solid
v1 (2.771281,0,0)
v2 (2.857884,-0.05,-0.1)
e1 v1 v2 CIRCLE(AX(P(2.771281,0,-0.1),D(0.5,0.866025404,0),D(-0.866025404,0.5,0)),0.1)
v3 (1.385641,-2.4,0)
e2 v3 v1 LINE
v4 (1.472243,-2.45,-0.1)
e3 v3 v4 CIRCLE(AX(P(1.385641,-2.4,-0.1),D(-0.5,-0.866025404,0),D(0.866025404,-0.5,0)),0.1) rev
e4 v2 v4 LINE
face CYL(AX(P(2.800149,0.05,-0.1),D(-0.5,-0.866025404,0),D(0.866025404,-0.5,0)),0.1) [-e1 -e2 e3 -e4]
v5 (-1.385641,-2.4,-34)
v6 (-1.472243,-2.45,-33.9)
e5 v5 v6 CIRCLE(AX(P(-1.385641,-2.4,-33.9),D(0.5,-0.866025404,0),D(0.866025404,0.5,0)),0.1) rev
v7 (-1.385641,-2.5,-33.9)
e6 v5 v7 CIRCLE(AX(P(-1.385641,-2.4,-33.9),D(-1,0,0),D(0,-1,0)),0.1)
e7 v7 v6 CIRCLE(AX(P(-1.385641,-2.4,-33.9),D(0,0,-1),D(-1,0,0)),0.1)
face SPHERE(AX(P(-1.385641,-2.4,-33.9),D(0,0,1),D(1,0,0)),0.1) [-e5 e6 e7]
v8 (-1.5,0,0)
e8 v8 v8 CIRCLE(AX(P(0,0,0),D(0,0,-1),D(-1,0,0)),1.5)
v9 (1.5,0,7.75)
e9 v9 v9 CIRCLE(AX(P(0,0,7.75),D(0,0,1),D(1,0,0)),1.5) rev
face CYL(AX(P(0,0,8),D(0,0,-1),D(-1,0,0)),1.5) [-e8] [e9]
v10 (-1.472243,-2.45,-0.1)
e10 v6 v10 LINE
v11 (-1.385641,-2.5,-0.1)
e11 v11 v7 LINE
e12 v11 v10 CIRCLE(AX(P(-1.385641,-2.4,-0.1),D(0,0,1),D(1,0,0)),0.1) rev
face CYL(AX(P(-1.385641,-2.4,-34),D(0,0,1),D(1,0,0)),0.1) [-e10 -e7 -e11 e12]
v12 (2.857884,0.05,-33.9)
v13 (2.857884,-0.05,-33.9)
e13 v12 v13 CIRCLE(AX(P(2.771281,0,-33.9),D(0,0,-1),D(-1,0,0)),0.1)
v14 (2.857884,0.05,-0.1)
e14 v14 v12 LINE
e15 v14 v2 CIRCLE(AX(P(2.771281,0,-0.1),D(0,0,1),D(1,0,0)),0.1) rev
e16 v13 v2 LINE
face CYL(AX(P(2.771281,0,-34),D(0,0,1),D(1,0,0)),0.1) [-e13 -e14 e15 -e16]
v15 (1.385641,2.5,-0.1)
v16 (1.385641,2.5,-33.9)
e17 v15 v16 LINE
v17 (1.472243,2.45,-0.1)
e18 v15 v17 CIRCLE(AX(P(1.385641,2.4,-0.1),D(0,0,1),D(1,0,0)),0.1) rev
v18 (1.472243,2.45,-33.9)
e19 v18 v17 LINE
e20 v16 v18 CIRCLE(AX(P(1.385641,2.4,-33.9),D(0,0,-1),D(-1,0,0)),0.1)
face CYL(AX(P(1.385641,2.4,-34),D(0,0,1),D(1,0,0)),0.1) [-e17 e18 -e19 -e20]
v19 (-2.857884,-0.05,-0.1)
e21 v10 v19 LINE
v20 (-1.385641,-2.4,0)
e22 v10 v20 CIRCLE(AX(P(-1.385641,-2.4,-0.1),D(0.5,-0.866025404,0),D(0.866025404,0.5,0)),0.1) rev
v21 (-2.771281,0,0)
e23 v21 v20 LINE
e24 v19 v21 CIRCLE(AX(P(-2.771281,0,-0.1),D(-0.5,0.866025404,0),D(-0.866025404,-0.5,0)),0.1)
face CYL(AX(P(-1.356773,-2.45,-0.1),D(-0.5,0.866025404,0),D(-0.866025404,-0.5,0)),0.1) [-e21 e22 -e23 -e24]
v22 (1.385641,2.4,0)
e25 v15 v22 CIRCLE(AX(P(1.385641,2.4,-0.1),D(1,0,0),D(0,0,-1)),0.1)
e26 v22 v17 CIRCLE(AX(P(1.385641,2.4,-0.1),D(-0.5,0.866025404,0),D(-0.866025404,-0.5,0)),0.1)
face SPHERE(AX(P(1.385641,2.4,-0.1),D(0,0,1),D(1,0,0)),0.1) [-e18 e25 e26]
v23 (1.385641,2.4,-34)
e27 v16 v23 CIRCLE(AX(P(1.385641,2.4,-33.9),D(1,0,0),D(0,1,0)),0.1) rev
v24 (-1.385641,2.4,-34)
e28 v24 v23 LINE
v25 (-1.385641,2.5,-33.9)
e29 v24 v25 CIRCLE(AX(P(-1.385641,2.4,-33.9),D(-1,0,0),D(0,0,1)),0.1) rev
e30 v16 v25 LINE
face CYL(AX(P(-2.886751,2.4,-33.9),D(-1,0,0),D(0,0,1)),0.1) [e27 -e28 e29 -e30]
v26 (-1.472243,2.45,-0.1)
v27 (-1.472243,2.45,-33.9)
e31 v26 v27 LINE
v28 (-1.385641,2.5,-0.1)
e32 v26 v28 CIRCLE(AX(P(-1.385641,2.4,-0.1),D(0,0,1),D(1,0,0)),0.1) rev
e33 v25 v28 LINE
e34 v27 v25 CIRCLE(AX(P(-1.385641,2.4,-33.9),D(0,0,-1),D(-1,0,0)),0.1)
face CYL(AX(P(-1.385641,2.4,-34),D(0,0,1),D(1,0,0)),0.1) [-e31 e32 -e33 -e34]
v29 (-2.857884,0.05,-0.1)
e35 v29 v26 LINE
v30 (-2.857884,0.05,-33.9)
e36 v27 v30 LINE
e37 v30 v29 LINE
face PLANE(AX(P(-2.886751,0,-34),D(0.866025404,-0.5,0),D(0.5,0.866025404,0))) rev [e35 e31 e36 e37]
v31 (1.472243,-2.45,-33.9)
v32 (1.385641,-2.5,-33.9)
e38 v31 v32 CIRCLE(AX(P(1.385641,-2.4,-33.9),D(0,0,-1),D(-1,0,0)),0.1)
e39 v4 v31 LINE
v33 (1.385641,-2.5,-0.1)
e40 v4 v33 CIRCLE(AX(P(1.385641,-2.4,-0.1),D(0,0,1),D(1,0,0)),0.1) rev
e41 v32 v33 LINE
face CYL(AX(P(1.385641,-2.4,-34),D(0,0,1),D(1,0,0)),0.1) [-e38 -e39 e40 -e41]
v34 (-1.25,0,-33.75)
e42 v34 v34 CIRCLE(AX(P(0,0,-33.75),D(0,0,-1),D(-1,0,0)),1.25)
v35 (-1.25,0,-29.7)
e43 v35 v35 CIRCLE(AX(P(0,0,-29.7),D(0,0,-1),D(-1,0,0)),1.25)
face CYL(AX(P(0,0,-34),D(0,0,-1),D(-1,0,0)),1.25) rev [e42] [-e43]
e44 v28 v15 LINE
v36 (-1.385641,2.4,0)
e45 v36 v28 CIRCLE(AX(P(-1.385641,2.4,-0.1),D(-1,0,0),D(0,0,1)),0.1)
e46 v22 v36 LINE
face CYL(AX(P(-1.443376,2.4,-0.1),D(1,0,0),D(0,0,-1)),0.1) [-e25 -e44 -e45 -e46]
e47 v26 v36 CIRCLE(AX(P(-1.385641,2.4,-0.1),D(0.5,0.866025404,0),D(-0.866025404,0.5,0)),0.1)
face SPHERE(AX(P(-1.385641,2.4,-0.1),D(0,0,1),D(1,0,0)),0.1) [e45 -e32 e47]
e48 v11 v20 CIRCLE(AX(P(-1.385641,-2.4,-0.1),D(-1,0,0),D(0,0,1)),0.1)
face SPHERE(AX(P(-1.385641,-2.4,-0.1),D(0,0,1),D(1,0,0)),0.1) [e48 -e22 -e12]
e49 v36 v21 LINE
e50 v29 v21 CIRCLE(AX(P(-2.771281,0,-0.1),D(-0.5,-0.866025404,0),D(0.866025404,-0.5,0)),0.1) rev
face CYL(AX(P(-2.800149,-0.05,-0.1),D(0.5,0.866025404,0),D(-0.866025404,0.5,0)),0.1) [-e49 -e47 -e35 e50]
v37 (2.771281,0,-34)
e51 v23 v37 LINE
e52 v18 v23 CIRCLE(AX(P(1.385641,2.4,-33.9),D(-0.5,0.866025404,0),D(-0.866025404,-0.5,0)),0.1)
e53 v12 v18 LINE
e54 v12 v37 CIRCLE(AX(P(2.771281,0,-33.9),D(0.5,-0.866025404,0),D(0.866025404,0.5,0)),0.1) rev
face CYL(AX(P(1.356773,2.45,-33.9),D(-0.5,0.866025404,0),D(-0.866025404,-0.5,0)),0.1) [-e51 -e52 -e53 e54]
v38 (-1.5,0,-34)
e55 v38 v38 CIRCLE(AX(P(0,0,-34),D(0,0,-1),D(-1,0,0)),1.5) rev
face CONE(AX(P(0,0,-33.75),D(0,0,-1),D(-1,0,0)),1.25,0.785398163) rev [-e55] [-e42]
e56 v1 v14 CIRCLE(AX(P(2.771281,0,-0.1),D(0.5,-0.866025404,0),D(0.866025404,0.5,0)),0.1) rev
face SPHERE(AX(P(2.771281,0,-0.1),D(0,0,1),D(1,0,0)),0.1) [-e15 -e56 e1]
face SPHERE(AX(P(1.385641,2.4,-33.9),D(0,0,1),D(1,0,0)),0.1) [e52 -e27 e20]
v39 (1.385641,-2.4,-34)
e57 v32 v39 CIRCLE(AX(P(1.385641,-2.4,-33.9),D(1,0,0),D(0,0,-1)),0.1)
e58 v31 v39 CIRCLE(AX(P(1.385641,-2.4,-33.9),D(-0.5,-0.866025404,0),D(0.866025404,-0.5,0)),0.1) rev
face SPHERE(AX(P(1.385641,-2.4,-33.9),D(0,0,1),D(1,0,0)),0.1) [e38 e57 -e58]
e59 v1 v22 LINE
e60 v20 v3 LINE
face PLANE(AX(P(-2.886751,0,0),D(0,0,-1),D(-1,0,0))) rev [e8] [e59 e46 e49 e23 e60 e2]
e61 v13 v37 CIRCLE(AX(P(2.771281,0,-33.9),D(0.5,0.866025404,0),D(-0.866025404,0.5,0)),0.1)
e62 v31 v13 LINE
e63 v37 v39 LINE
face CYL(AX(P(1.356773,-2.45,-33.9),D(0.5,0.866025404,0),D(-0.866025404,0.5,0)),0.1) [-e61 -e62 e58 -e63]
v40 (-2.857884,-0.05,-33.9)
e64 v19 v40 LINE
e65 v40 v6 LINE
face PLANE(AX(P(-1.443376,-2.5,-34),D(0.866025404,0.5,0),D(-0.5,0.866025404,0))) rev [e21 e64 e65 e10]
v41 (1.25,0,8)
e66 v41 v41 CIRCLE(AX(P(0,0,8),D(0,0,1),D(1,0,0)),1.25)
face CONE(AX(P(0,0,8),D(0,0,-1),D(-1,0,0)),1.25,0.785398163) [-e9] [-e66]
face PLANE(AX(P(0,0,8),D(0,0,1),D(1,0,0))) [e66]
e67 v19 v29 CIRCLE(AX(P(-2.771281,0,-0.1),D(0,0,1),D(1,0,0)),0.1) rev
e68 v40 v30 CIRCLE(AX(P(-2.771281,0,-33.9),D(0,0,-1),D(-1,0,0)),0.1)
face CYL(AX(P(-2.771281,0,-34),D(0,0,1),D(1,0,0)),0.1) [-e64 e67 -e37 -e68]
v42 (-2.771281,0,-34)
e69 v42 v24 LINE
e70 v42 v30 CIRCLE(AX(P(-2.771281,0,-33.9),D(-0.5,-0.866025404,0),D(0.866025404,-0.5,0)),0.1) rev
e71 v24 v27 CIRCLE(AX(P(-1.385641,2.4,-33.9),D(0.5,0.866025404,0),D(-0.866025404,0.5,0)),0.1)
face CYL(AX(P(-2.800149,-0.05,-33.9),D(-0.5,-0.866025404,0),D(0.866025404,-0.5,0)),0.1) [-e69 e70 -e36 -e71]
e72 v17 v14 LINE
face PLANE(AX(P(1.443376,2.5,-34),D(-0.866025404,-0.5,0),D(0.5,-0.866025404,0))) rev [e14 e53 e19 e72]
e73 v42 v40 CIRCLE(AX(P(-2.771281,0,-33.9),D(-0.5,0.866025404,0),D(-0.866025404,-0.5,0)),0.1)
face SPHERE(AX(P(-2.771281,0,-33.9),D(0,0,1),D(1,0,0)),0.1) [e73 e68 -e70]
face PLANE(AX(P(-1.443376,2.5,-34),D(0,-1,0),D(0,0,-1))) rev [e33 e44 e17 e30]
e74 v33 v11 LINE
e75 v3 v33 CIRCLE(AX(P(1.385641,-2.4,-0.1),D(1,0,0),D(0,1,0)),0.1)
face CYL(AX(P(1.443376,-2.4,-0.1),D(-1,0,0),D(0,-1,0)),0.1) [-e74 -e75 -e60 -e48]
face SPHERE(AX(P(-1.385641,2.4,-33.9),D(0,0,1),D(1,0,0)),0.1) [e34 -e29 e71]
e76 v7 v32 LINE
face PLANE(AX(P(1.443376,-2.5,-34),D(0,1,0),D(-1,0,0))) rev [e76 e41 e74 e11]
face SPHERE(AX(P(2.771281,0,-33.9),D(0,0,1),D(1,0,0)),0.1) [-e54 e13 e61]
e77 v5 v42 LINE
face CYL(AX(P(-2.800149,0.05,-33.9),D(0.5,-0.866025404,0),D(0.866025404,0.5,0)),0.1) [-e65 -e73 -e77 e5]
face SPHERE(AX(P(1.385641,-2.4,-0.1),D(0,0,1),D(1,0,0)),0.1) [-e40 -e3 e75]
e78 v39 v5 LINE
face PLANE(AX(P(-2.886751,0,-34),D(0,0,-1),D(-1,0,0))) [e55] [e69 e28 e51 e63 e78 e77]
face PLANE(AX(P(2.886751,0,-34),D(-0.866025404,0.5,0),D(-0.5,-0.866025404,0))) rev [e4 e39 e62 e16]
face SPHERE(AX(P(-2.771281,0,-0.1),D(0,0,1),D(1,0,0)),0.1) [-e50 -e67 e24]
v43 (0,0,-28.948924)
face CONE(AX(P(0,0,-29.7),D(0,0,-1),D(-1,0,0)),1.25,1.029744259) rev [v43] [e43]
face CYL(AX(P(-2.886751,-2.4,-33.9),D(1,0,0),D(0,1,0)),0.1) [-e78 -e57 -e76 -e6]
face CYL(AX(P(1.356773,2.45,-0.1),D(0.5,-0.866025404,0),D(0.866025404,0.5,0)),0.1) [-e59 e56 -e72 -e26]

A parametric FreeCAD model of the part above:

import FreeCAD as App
import Part
import Sketcher
Q = App.Units.Quantity


def edges_at(feature, points):
    """Names of the edges that pass closest to the given points."""
    edges = feature.Shape.Edges
    near = lambda p: min(range(len(edges)), key=lambda i: edges[i].distToShape(Part.Vertex(*p))[0])
    return sorted({f"Edge{near(p) + 1}" for p in points})

doc = App.newDocument("Part")
body = doc.addObject("PartDesign::Body", "Body")

# Sketch on XY plane
sketch1 = body.newObject("Sketcher::SketchObject", "Sketch")
sketch1.AttachmentSupport = (doc.getObject("XY_Plane"), [""])
sketch1.MapMode = "FlatFace"
sketch1.addGeometry(Part.Circle(App.Vector(0, 0, 0), App.Vector(0, 0, 1), 1.5), False)
sketch1.addConstraint([
    Sketcher.Constraint("Coincident", 0, 3, -1, 1),
    Sketcher.Constraint("Diameter", 0, Q("3 mm")),
])
pad1 = body.newObject("PartDesign::Pad", "Pad")
pad1.Profile = sketch1
pad1.Length = 8

# Sketch on XY plane
sketch2 = body.newObject("Sketcher::SketchObject", "Sketch001")
sketch2.AttachmentSupport = (doc.getObject("XY_Plane"), [""])
sketch2.MapMode = "FlatFace"
sketch2.addGeometry([
    Part.LineSegment(App.Vector(-2.9, 0, 0), App.Vector(-1.4, 2.5, 0)),  # 0
    Part.LineSegment(App.Vector(-1.4, 2.5, 0), App.Vector(1.4, 2.5, 0)),  # 1
    Part.LineSegment(App.Vector(1.4, 2.5, 0), App.Vector(2.9, 0, 0)),  # 2
    Part.LineSegment(App.Vector(2.9, 0, 0), App.Vector(1.4, -2.5, 0)),  # 3
    Part.LineSegment(App.Vector(1.4, -2.5, 0), App.Vector(-1.4, -2.5, 0)),  # 4
    Part.LineSegment(App.Vector(-1.4, -2.5, 0), App.Vector(-2.9, 0, 0)),  # 5
], False)
sketch2.addConstraint([
    Sketcher.Constraint("Coincident", 0, 2, 1, 1),
    Sketcher.Constraint("Coincident", 1, 2, 2, 1),
    Sketcher.Constraint("Coincident", 2, 2, 3, 1),
    Sketcher.Constraint("Coincident", 3, 2, 4, 1),
    Sketcher.Constraint("Coincident", 4, 2, 5, 1),
    Sketcher.Constraint("Coincident", 5, 2, 0, 1),
    Sketcher.Constraint("Horizontal", 1),
    Sketcher.Constraint("Horizontal", 4),
    Sketcher.Constraint("Symmetric", 0, 2, 3, 2, -1, 1),
    Sketcher.Constraint("Symmetric", 2, 2, 5, 2, -1, 1),
    Sketcher.Constraint("PointOnObject", 2, 2, -1),
    Sketcher.Constraint("Parallel", 2, 5),
    Sketcher.Constraint("Vertical", 1, 2, 3, 2),
    Sketcher.Constraint("Angle", 0, Q("60 deg")),
    Sketcher.Constraint("DistanceY", 3, 2, 1, 2, Q("5 mm")),
    Sketcher.Constraint("DistanceX", 1, 1, 1, 2, Q("2.886751 mm")),
])
pad2 = body.newObject("PartDesign::Pad", "Pad001")
pad2.Profile = sketch2
pad2.Length = 34
pad2.Reversed = True

# Sketch on XY plane
sketch3 = body.newObject("Sketcher::SketchObject", "Sketch002")
sketch3.AttachmentSupport = (doc.getObject("XY_Plane"), [""])
sketch3.MapMode = "FlatFace"
sketch3.AttachmentOffset = App.Placement(App.Vector(0, 0, -34), App.Rotation())
sketch3.addGeometry(Part.Circle(App.Vector(0, 0, 0), App.Vector(0, 0, 1), 1.2), False)
sketch3.addConstraint([
    Sketcher.Constraint("Coincident", 0, 3, -1, 1),
    Sketcher.Constraint("Diameter", 0, Q("2.5 mm")),
])
doc.recompute()
hole = body.newObject("PartDesign::Hole", "Hole")
hole.Profile = sketch3
hole.ThreadType = "None"
hole.Diameter = 2.5
hole.DepthType = "Dimension"
hole.Depth = 4.3
hole.DrillPoint = "Angled"
hole.DrillPointAngle = 118
hole.Reversed = True
doc.recompute()

chamfer = body.newObject("PartDesign::Chamfer", "Chamfer")
chamfer.Base = (hole, edges_at(hole, [(-1.25, 0, -34), (-1.5, 0, 8)]))
chamfer.Size = 0.25
doc.recompute()

fillet = body.newObject("PartDesign::Fillet", "Fillet")
fillet.Base = (chamfer, edges_at(chamfer, [
    (-2.165, -1.25, 0),
    (-1.443, -2.5, -17),
    (-2.165, 1.25, 0),
    (-2.887, 0, -17),
    (0, 2.5, 0),
    (-1.443, 2.5, -17),
    (2.165, 1.25, 0),
    (1.443, 2.5, -17),
    (2.165, -1.25, 0),
    (2.887, 0, -17),
    (0, -2.5, 0),
    (1.443, -2.5, -17),
    (-2.165, -1.25, -34),
    (-2.165, 1.25, -34),
    (0, 2.5, -34),
    (2.165, 1.25, -34),
    (2.165, -1.25, -34),
    (0, -2.5, -34),
]))
fillet.Radius = 0.1

doc.recompute()
